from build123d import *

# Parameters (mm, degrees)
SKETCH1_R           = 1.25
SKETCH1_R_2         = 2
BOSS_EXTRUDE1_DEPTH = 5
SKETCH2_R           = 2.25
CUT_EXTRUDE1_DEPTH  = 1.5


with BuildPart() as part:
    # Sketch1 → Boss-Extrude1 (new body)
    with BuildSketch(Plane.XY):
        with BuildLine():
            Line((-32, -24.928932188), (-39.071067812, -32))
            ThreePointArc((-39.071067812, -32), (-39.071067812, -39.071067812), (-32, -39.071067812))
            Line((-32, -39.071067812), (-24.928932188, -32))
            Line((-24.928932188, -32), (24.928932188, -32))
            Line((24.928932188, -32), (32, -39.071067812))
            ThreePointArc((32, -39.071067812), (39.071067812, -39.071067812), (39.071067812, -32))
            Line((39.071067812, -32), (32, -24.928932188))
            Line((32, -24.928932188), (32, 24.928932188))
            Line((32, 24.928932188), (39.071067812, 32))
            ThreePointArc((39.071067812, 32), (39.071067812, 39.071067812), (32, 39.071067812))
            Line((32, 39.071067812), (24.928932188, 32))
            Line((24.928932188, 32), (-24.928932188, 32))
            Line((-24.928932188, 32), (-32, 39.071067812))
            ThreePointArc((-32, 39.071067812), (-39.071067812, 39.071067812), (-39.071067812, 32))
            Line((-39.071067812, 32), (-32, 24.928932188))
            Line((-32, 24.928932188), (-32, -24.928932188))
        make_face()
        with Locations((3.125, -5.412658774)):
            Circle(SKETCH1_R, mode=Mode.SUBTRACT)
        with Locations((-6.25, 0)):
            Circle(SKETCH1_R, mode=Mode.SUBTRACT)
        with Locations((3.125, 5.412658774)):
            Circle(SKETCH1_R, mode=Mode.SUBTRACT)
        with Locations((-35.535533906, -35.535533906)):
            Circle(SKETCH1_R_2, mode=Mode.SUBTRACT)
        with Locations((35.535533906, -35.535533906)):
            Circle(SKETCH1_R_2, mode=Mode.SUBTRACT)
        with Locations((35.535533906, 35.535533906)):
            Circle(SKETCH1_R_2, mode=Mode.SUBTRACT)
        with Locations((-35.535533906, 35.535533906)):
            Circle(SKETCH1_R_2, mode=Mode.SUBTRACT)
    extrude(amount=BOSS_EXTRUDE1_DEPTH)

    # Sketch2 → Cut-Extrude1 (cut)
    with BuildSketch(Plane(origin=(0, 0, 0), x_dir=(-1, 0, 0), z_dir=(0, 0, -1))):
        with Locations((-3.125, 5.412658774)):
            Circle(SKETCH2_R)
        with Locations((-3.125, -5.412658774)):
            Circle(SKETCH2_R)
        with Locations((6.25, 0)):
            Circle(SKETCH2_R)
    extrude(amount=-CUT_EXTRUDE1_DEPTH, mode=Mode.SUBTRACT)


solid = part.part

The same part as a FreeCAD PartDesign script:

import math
import FreeCAD as App
import Part
import Sketcher
Q = App.Units.Quantity

doc = App.newDocument("Part")
body = doc.addObject("PartDesign::Body", "Body")

sketch1 = doc.addObject("Sketcher::SketchObject", "Sketch")
body.addObject(sketch1)
sketch1.AttachmentSupport = (doc.XY_Plane, [""])
sketch1.MapMode = "FlatFace"
sketch1.addGeometry(Part.LineSegment(App.Vector(-32, -24.9, 0), App.Vector(-39.1, -32, 0)), False)
sketch1.addGeometry(Part.ArcOfCircle(Part.Circle(App.Vector(-35.5, -35.5, 0), App.Vector(0, 0, 1), 5), math.radians(135), math.radians(315)), False)
sketch1.addGeometry(Part.LineSegment(App.Vector(-32, -39.1, 0), App.Vector(-24.9, -32, 0)), False)
sketch1.addGeometry(Part.LineSegment(App.Vector(-24.9, -32, 0), App.Vector(24.9, -32, 0)), False)
sketch1.addGeometry(Part.LineSegment(App.Vector(24.9, -32, 0), App.Vector(32, -39.1, 0)), False)
sketch1.addGeometry(Part.ArcOfCircle(Part.Circle(App.Vector(35.5, -35.5, 0), App.Vector(0, 0, 1), 5), math.radians(-135), math.radians(45)), False)
sketch1.addGeometry(Part.LineSegment(App.Vector(39.1, -32, 0), App.Vector(32, -24.9, 0)), False)
sketch1.addGeometry(Part.LineSegment(App.Vector(32, -24.9, 0), App.Vector(32, 24.9, 0)), False)
sketch1.addGeometry(Part.LineSegment(App.Vector(32, 24.9, 0), App.Vector(39.1, 32, 0)), False)
sketch1.addGeometry(Part.ArcOfCircle(Part.Circle(App.Vector(35.5, 35.5, 0), App.Vector(0, 0, 1), 5), math.radians(-45), math.radians(135)), False)
sketch1.addGeometry(Part.LineSegment(App.Vector(32, 39.1, 0), App.Vector(24.9, 32, 0)), False)
sketch1.addGeometry(Part.LineSegment(App.Vector(24.9, 32, 0), App.Vector(-24.9, 32, 0)), False)
sketch1.addGeometry(Part.LineSegment(App.Vector(-24.9, 32, 0), App.Vector(-32, 39.1, 0)), False)
sketch1.addGeometry(Part.ArcOfCircle(Part.Circle(App.Vector(-35.5, 35.5, 0), App.Vector(0, 0, 1), 5), math.radians(45), math.radians(225)), False)
sketch1.addGeometry(Part.LineSegment(App.Vector(-39.1, 32, 0), App.Vector(-32, 24.9, 0)), False)
sketch1.addGeometry(Part.LineSegment(App.Vector(-32, 24.9, 0), App.Vector(-32, -24.9, 0)), False)
sketch1.addGeometry(Part.Circle(App.Vector(-35.5, -35.5, 0), App.Vector(0, 0, 1), 2), False)
sketch1.addGeometry(Part.Circle(App.Vector(35.5, -35.5, 0), App.Vector(0, 0, 1), 2), False)
sketch1.addGeometry(Part.Circle(App.Vector(3.1, -5.4, 0), App.Vector(0, 0, 1), 1.2), False)
sketch1.addGeometry(Part.Circle(App.Vector(-6.2, 0, 0), App.Vector(0, 0, 1), 1.2), False)
sketch1.addGeometry(Part.Circle(App.Vector(-35.5, 35.5, 0), App.Vector(0, 0, 1), 2), False)
sketch1.addGeometry(Part.Circle(App.Vector(3.1, 5.4, 0), App.Vector(0, 0, 1), 1.2), False)
sketch1.addGeometry(Part.Circle(App.Vector(35.5, 35.5, 0), App.Vector(0, 0, 1), 2), False)
sketch1.addConstraint(Sketcher.Constraint("Tangent", 0, 2, 1, 1))
sketch1.addConstraint(Sketcher.Constraint("Tangent", 1, 2, 2, 1))
sketch1.addConstraint(Sketcher.Constraint("Coincident", 2, 2, 3, 1))
sketch1.addConstraint(Sketcher.Constraint("Coincident", 3, 2, 4, 1))
sketch1.addConstraint(Sketcher.Constraint("Tangent", 4, 2, 5, 1))
sketch1.addConstraint(Sketcher.Constraint("Tangent", 5, 2, 6, 1))
sketch1.addConstraint(Sketcher.Constraint("Coincident", 6, 2, 7, 1))
sketch1.addConstraint(Sketcher.Constraint("Coincident", 7, 2, 8, 1))
sketch1.addConstraint(Sketcher.Constraint("Tangent", 8, 2, 9, 1))
sketch1.addConstraint(Sketcher.Constraint("Tangent", 9, 2, 10, 1))
sketch1.addConstraint(Sketcher.Constraint("Coincident", 10, 2, 11, 1))
sketch1.addConstraint(Sketcher.Constraint("Coincident", 11, 2, 12, 1))
sketch1.addConstraint(Sketcher.Constraint("Tangent", 12, 2, 13, 1))
sketch1.addConstraint(Sketcher.Constraint("Tangent", 13, 2, 14, 1))
sketch1.addConstraint(Sketcher.Constraint("Coincident", 14, 2, 15, 1))
sketch1.addConstraint(Sketcher.Constraint("Coincident", 15, 2, 0, 1))
sketch1.addConstraint(Sketcher.Constraint("Horizontal", 3))
sketch1.addConstraint(Sketcher.Constraint("Vertical", 7))
sketch1.addConstraint(Sketcher.Constraint("Horizontal", 11))
sketch1.addConstraint(Sketcher.Constraint("Vertical", 15))
sketch1.addConstraint(Sketcher.Constraint("Coincident", 16, 3, 1, 3))
sketch1.addConstraint(Sketcher.Constraint("Coincident", 17, 3, 5, 3))
sketch1.addConstraint(Sketcher.Constraint("Coincident", 20, 3, 13, 3))
sketch1.addConstraint(Sketcher.Constraint("Coincident", 22, 3, 9, 3))
sketch1.addConstraint(Sketcher.Constraint("Equal", 1, 5))
sketch1.addConstraint(Sketcher.Constraint("Equal", 5, 9))
sketch1.addConstraint(Sketcher.Constraint("Equal", 9, 13))
sketch1.addConstraint(Sketcher.Constraint("Equal", 16, 17))
sketch1.addConstraint(Sketcher.Constraint("Equal", 18, 19))
sketch1.addConstraint(Sketcher.Constraint("Equal", 17, 20))
sketch1.addConstraint(Sketcher.Constraint("Equal", 19, 21))
sketch1.addConstraint(Sketcher.Constraint("Equal", 20, 22))
sketch1.addConstraint(Sketcher.Constraint("Symmetric", 1, 3, 9, 3, -1, 1))
sketch1.addConstraint(Sketcher.Constraint("Symmetric", 5, 3, 13, 3, -1, 1))
sketch1.addConstraint(Sketcher.Constraint("Symmetric", 2, 2, 10, 2, -1, 1))
sketch1.addConstraint(Sketcher.Constraint("Symmetric", 6, 2, 14, 2, -1, 1))
sketch1.addConstraint(Sketcher.Constraint("Symmetric", 1, 3, 5, 3, -2))
sketch1.addConstraint(Sketcher.Constraint("Symmetric", 18, 3, 21, 3, -1))
sketch1.addConstraint(Sketcher.Constraint("PointOnObject", 19, 3, -1))
sketch1.addConstraint(Sketcher.Constraint("Parallel", 0, 2))
sketch1.addConstraint(Sketcher.Constraint("Perpendicular", 2, 4))
sketch1.addConstraint(Sketcher.Constraint("Parallel", 4, 6))
sketch1.addConstraint(Sketcher.Constraint("Perpendicular", 6, 8))
sketch1.addConstraint(Sketcher.Constraint("Perpendicular", 10, 12))
sketch1.addConstraint(Sketcher.Constraint("Horizontal", 0, 2, 2, 2))
sketch1.addConstraint(Sketcher.Constraint("Horizontal", 1, 2, 4, 2))
sketch1.addConstraint(Sketcher.Constraint("Vertical", 4, 2, 6, 2))
sketch1.addConstraint(Sketcher.Constraint("Equal", 11, 7))
sketch1.addConstraint(Sketcher.Constraint("Diameter", 16, Q("4 mm")))
sketch1.addConstraint(Sketcher.Constraint("Radius", 1, Q("5 mm")))
sketch1.addConstraint(Sketcher.Constraint("Diameter", 18, Q("2.5 mm")))
sketch1.addConstraint(Sketcher.Constraint("DistanceY", 0, 2, -1, 1, Q("32 mm")))
sketch1.addConstraint(Sketcher.Constraint("DistanceX", 19, 3, -1, 1, Q("6.25 mm")))
sketch1.addConstraint(Sketcher.Constraint("DistanceX", -1, 1, 18, 3, Q("3.125 mm")))
sketch1.addConstraint(Sketcher.Constraint("DistanceY", 18, 3, -1, 1, Q("5.412659 mm")))
pad1 = doc.addObject("PartDesign::Pad", "Pad")
body.addObject(pad1)
pad1.Profile = sketch1
pad1.Length = 5

sketch2 = doc.addObject("Sketcher::SketchObject", "Sketch001")
body.addObject(sketch2)
sketch2.AttachmentSupport = (doc.XY_Plane, [""])
sketch2.MapMode = "FlatFace"
sketch2.addGeometry(Part.Circle(App.Vector(3.1, 5.4, 0), App.Vector(0, 0, 1), 2.2), False)
sketch2.addGeometry(Part.Circle(App.Vector(3.1, -5.4, 0), App.Vector(0, 0, 1), 2.2), False)
sketch2.addGeometry(Part.Circle(App.Vector(-6.2, 0, 0), App.Vector(0, 0, 1), 2.2), False)
sketch2.addConstraint(Sketcher.Constraint("Equal", 0, 1))
sketch2.addConstraint(Sketcher.Constraint("Equal", 1, 2))
sketch2.addConstraint(Sketcher.Constraint("Symmetric", 0, 3, 1, 3, -1))
sketch2.addConstraint(Sketcher.Constraint("PointOnObject", 2, 3, -1))
sketch2.addConstraint(Sketcher.Constraint("Diameter", 0, Q("4.5 mm")))
sketch2.addConstraint(Sketcher.Constraint("DistanceX", 2, 3, -1, 1, Q("6.25 mm")))
sketch2.addConstraint(Sketcher.Constraint("DistanceX", -1, 1, 0, 3, Q("3.125 mm")))
sketch2.addConstraint(Sketcher.Constraint("DistanceY", -1, 1, 0, 3, Q("5.412659 mm")))
pocket1 = doc.addObject("PartDesign::Pocket", "Pocket")
body.addObject(pocket1)
pocket1.Profile = sketch2
pocket1.Length = 1.5
pocket1.Reversed = True

doc.recompute()
